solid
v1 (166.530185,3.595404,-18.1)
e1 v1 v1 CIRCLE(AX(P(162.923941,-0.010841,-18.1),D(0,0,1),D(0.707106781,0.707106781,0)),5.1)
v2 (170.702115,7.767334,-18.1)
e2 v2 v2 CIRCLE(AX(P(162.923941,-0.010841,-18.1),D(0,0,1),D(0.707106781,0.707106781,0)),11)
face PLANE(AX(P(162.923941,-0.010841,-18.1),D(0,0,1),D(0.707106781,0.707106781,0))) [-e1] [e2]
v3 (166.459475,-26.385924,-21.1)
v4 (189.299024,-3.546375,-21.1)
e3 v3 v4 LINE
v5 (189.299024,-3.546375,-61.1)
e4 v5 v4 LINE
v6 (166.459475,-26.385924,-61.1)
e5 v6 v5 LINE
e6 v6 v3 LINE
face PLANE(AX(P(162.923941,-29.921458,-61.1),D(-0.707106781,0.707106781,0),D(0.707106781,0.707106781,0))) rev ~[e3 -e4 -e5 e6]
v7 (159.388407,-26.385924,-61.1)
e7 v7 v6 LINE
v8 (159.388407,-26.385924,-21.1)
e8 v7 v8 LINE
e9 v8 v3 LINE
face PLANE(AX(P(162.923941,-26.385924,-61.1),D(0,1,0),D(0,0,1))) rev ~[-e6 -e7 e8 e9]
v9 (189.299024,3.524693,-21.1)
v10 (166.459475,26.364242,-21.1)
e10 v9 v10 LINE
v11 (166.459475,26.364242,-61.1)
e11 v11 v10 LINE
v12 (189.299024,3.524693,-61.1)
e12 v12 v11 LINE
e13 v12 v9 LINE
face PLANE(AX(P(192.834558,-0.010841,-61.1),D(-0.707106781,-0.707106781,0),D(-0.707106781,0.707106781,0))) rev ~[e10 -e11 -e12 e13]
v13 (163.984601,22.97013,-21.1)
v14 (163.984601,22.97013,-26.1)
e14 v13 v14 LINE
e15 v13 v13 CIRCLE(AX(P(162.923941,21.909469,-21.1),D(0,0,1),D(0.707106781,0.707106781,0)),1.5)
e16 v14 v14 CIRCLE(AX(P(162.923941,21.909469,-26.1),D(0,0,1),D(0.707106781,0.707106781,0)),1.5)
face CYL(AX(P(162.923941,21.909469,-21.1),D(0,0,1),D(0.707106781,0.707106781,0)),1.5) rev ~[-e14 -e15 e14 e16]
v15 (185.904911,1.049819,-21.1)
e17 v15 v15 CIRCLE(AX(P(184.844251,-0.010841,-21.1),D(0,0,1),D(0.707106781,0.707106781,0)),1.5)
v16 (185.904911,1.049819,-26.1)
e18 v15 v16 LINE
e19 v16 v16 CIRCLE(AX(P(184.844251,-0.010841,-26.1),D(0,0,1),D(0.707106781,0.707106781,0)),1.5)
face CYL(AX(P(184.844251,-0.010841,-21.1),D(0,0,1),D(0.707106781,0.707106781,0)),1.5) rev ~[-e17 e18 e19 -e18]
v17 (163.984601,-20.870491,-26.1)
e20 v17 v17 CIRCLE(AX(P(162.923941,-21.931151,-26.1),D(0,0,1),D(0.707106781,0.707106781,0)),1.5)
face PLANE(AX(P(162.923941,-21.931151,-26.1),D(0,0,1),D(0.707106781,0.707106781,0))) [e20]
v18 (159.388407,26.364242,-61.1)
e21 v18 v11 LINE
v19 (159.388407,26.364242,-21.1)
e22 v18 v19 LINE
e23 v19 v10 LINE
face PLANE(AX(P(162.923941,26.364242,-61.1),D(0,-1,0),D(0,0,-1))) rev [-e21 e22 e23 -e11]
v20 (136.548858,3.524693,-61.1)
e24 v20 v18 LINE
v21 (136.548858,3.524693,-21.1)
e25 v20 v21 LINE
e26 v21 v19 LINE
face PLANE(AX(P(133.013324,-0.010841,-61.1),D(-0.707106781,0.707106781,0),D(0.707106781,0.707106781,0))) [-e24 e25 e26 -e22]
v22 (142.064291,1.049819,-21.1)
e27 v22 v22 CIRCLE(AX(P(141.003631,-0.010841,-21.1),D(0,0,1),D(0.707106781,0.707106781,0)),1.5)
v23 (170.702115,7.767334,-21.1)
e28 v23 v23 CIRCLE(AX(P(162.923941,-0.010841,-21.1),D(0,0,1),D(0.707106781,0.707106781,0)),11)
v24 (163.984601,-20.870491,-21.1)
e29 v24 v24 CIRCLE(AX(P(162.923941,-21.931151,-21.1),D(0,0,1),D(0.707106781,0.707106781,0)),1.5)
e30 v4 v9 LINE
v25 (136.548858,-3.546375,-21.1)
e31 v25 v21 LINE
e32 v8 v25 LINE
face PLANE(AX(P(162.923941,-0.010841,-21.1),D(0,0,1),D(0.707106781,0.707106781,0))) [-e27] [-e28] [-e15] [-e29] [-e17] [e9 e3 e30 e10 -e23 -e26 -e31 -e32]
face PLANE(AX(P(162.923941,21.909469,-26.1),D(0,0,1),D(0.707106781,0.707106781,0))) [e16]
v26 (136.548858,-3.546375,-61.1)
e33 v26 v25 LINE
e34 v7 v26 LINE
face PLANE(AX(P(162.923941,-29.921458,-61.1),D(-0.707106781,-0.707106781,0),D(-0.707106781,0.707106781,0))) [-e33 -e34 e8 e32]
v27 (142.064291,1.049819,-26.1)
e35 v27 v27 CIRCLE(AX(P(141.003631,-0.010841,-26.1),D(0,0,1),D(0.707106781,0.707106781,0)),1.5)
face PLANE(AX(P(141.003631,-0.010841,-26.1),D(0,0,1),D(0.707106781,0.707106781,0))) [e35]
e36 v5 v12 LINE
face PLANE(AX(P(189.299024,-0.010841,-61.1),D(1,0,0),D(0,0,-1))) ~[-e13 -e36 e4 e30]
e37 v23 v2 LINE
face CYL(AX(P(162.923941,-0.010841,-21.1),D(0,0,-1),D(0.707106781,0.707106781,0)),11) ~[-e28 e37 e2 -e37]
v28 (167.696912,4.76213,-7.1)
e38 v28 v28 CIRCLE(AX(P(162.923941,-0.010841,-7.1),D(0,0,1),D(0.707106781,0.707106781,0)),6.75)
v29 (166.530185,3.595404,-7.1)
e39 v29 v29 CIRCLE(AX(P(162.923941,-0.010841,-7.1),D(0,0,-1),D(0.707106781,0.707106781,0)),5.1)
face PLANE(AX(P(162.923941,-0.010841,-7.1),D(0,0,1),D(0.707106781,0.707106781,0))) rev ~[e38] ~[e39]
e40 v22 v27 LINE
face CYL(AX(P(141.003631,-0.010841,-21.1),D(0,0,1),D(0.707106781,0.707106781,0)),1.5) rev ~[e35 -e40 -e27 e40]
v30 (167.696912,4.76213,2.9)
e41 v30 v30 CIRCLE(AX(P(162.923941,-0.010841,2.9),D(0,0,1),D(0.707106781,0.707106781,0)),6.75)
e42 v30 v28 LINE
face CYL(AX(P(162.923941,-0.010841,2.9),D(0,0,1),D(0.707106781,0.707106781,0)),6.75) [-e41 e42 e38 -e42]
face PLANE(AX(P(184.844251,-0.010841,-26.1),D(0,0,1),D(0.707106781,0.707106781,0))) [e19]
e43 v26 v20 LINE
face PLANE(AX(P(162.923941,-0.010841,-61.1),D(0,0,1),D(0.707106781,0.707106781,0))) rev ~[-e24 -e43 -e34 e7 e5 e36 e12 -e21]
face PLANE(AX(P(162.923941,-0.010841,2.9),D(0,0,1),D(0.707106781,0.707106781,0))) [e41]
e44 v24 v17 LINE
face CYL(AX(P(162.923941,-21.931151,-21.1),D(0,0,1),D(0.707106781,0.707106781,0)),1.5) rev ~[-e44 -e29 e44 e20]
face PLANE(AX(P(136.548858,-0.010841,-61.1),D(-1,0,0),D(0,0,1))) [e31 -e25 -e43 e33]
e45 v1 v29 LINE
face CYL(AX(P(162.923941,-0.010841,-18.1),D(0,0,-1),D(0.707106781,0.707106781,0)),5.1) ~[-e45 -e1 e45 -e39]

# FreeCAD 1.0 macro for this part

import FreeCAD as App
import Part
import Sketcher
from FreeCAD import Vector
Q = App.Units.Quantity


def edges_at(feature, points):
    """Names of the edges that pass closest to the given points."""
    edges = feature.Shape.Edges
    near = lambda p: min(range(len(edges)), key=lambda i: edges[i].distToShape(Part.Vertex(*p))[0])
    return sorted({f"Edge{near(p) + 1}" for p in points})


def add_polygon(sketch, points):
    """Adds a closed chain of lines whose ends are joined by coincident constraints."""
    first, n = sketch.GeometryCount, len(points)
    for a, b in zip(points, points[1:] + points[:1]):
        sketch.addGeometry(Part.LineSegment(App.Vector(*a, 0), App.Vector(*b, 0)), False)
    for i in range(n):
        sketch.addConstraint(Sketcher.Constraint("Coincident", first + i, 2, first + (i + 1) % n, 1))

doc = App.newDocument("Part")
params = doc.addObject("Spreadsheet::Sheet", "Params")
for row, (alias, value) in enumerate([
    ("sketch1_width", "42.3 mm"),
    ("pad1_length", "40 mm"),
    ("sketch2_diameter", "22 mm"),
    ("pad2_length", "3 mm"),
    ("sketch3_diameter", "10.2 mm"),
    ("pad3_length", "21 mm"),
    ("sketch4_diameter", "3 mm"),
    ("pocket1_length", "5 mm"),
    ("chamfer_size", "5 mm"),
    ("sketch5_diameter", "13.5 mm"),
    ("pad4_length", "10 mm"),
], start=1):
    params.set(f"A{row}", alias)
    params.set(f"B{row}", "=" + value)
    params.setAlias(f"B{row}", alias)

body = doc.addObject("PartDesign::Body", "Body")

# Sketch on XY plane
sketch1 = body.newObject("Sketcher::SketchObject", "Sketch")
sketch1.AttachmentSupport = (doc.getObject("XY_Plane"), [""])
sketch1.MapMode = "FlatFace"
add_polygon(sketch1, [(-21.15, 21.15), (-21.15, -21.15), (21.15, -21.15), (21.15, 21.15)])  # lines 0-3
sketch1.addConstraint(Sketcher.Constraint("Vertical", 0))
sketch1.addConstraint(Sketcher.Constraint("Horizontal", 1))
sketch1.addConstraint(Sketcher.Constraint("Vertical", 2))
sketch1.addConstraint(Sketcher.Constraint("Horizontal", 3))
sketch1.addConstraint(Sketcher.Constraint("Symmetric", 0, 2, 2, 2, -1, 1))
sketch1.addConstraint(Sketcher.Constraint("Equal", 3, 0))
sketch1.addConstraint(Sketcher.Constraint("DistanceX", 1, 1, 1, 2, Q("42.3 mm")))
sketch1.setExpression("Constraints[10]", "Params.sketch1_width")
pad1 = body.newObject("PartDesign::Pad", "Pad")
pad1.Profile = sketch1
pad1.setExpression("Length", "Params.pad1_length")

# Sketch on XY plane
sketch2 = body.newObject("Sketcher::SketchObject", "Sketch001")
sketch2.AttachmentSupport = (doc.getObject("XY_Plane"), [""])
sketch2.MapMode = "FlatFace"
sketch2.AttachmentOffset = App.Placement(Vector(0, 0, 40), App.Rotation())
sketch2.addGeometry(Part.Circle(Vector(0, 0, 0), Vector(0, 0, 1), 11), False)
sketch2.addConstraint(Sketcher.Constraint("Coincident", 0, 3, -1, 1))
sketch2.addConstraint(Sketcher.Constraint("Diameter", 0, Q("22 mm")))
sketch2.setExpression("Constraints[1]", "Params.sketch2_diameter")
pad2 = body.newObject("PartDesign::Pad", "Pad001")
pad2.Profile = sketch2
pad2.setExpression("Length", "Params.pad2_length")

# Sketch on XY plane
sketch3 = body.newObject("Sketcher::SketchObject", "Sketch002")
sketch3.AttachmentSupport = (doc.getObject("XY_Plane"), [""])
sketch3.MapMode = "FlatFace"
sketch3.AttachmentOffset = App.Placement(Vector(0, 0, 43), App.Rotation())
sketch3.addGeometry(Part.Circle(Vector(0, 0, 0), Vector(0, 0, 1), 5.1), False)
sketch3.addConstraint(Sketcher.Constraint("Coincident", 0, 3, -1, 1))
sketch3.addConstraint(Sketcher.Constraint("Diameter", 0, Q("10.2 mm")))
sketch3.setExpression("Constraints[1]", "Params.sketch3_diameter")
pad3 = body.newObject("PartDesign::Pad", "Pad002")
pad3.Profile = sketch3
pad3.setExpression("Length", "Params.pad3_length")

# Sketch on XY plane
sketch4 = body.newObject("Sketcher::SketchObject", "Sketch003")
sketch4.AttachmentSupport = (doc.getObject("XY_Plane"), [""])
sketch4.MapMode = "FlatFace"
sketch4.AttachmentOffset = App.Placement(Vector(0, 0, 40), App.Rotation())
sketch4.addGeometry(Part.Circle(Vector(-15.5, 15.5, 0), Vector(0, 0, 1), 1.5), False)
sketch4.addGeometry(Part.Circle(Vector(15.5, 15.5, 0), Vector(0, 0, 1), 1.5), False)
sketch4.addGeometry(Part.Circle(Vector(15.5, -15.5, 0), Vector(0, 0, 1), 1.5), False)
sketch4.addGeometry(Part.Circle(Vector(-15.5, -15.5, 0), Vector(0, 0, 1), 1.5), False)
sketch4.addConstraint(Sketcher.Constraint("Equal", 0, 1))
sketch4.addConstraint(Sketcher.Constraint("Equal", 1, 2))
sketch4.addConstraint(Sketcher.Constraint("Equal", 2, 3))
sketch4.addConstraint(Sketcher.Constraint("Symmetric", 0, 3, 2, 3, -1, 1))
sketch4.addConstraint(Sketcher.Constraint("Symmetric", 1, 3, 3, 3, -1, 1))
sketch4.addConstraint(Sketcher.Constraint("Symmetric", 0, 3, 1, 3, -2))
sketch4.addConstraint(Sketcher.Constraint("Diameter", 0, Q("3 mm")))
sketch4.addConstraint(Sketcher.Constraint("DistanceX", 0, 3, 1, 3, Q("31 mm")))
sketch4.addConstraint(Sketcher.Constraint("DistanceY", 2, 3, 1, 3, Q("31 mm")))
sketch4.setExpression("Constraints[6]", "Params.sketch4_diameter")
pocket1 = body.newObject("PartDesign::Pocket", "Pocket")
pocket1.Profile = sketch4
pocket1.setExpression("Length", "Params.pocket1_length")
doc.recompute()

chamfer = body.newObject("PartDesign::Chamfer", "Chamfer")
chamfer.Base = (pocket1, edges_at(pocket1, [
    (21.15, 21.15, 20),
    (21.15, -21.15, 20),
    (-21.15, 21.15, 20),
    (-21.15, -21.15, 20),
]))
chamfer.setExpression("Size", "Params.chamfer_size")

# Sketch on XY plane
sketch5 = body.newObject("Sketcher::SketchObject", "Sketch004")
sketch5.AttachmentSupport = (doc.getObject("XY_Plane"), [""])
sketch5.MapMode = "FlatFace"
sketch5.AttachmentOffset = App.Placement(Vector(0, 0, 64), App.Rotation())
sketch5.addGeometry(Part.Circle(Vector(0, 0, 0), Vector(0, 0, 1), 6.75), False)
sketch5.addConstraint(Sketcher.Constraint("Coincident", 0, 3, -1, 1))
sketch5.addConstraint(Sketcher.Constraint("Diameter", 0, Q("13.5 mm")))
sketch5.setExpression("Constraints[1]", "Params.sketch5_diameter")
pad4 = body.newObject("PartDesign::Pad", "Pad003")
pad4.Profile = sketch5
pad4.setExpression("Length", "Params.pad4_length")
pad4.Reversed = True
body2 = doc.addObject("PartDesign::Body", "Body001")
doc.recompute()

body.Placement = App.Placement(Vector(162.923941, -0.010841, -61.1), App.Rotation(Vector(0, 0, 1), 45))
boolean = body2.newObject("PartDesign::Boolean", "Boolean")
boolean.Type = "Fuse"
boolean.addObjects([body])

doc.recompute()
